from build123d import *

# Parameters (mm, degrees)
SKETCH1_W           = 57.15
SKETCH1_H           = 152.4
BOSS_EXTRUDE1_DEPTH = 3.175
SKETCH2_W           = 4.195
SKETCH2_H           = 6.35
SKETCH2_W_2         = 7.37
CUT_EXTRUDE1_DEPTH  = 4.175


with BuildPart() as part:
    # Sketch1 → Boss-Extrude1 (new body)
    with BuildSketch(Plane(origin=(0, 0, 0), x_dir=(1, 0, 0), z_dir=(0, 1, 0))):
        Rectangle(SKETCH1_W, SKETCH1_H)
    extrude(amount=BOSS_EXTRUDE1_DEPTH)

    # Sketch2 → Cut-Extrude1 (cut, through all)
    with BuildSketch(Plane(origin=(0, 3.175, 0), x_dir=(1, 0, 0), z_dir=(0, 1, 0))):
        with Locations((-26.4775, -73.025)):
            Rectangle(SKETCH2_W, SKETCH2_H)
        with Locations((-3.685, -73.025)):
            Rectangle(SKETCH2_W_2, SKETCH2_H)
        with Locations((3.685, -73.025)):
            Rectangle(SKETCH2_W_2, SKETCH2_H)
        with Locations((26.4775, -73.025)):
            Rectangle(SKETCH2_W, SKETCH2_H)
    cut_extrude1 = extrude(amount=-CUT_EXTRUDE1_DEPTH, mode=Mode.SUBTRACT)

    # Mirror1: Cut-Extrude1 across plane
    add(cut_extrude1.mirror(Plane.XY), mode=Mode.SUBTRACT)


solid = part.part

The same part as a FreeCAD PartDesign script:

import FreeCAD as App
import Part
import Sketcher

V = App.Vector
Q = App.Units.Quantity


def add_polygon(sketch, points):
    """Adds a closed chain of lines whose ends are joined by coincident constraints."""
    first, n = sketch.GeometryCount, len(points)
    for a, b in zip(points, points[1:] + points[:1]):
        sketch.addGeometry(Part.LineSegment(App.Vector(*a, 0), App.Vector(*b, 0)), False)
    for i in range(n):
        sketch.addConstraint(Sketcher.Constraint("Coincident", first + i, 2, first + (i + 1) % n, 1))

doc = App.newDocument("Part")
body = doc.addObject("PartDesign::Body", "Body")

sketch1 = body.newObject("Sketcher::SketchObject", "Sketch")
sketch1.AttachmentSupport = (doc.getObject("XZ_Plane"), [""])
sketch1.MapMode = "FlatFace"
add_polygon(sketch1, [(-29, -76), (-29, 76), (29, 76), (29, -76)])
sketch1.addConstraint(Sketcher.Constraint("Vertical", 0))
sketch1.addConstraint(Sketcher.Constraint("Horizontal", 1))
sketch1.addConstraint(Sketcher.Constraint("Vertical", 2))
sketch1.addConstraint(Sketcher.Constraint("Horizontal", 3))
sketch1.addConstraint(Sketcher.Constraint("Symmetric", 0, 2, 2, 2, -1, 1))
sketch1.addConstraint(Sketcher.Constraint("DistanceY", 0, 1, 0, 2, Q("6 in")))
sketch1.addConstraint(Sketcher.Constraint("DistanceX", 1, 1, 1, 2, Q("2.25 in")))
pad1 = body.newObject("PartDesign::Pad", "Pad")
pad1.Profile = sketch1
pad1.Length = Q("0.125 in")
pad1.Reversed = True

sketch2 = body.newObject("Sketcher::SketchObject", "Sketch001")
sketch2.AttachmentSupport = (doc.getObject("XZ_Plane"), [""])
sketch2.MapMode = "FlatFace"
sketch2.AttachmentOffset = App.Placement(V(0, 0, -0.125 * 25.4), App.Rotation())
add_polygon(sketch2, [(-28.6, 69.8), (-28.6, 76.2), (-24.4, 76.2), (-24.4, 69.8)])
add_polygon(sketch2, [(-7.4, 69.8), (-7.4, 76.2), (7.4, 76.2), (7.4, 69.8)])
add_polygon(sketch2, [(24.4, 69.8), (24.4, 76.2), (28.6, 76.2), (28.6, 69.8)])
sketch2.addConstraint(Sketcher.Constraint("Vertical", 0))
sketch2.addConstraint(Sketcher.Constraint("Horizontal", 1))
sketch2.addConstraint(Sketcher.Constraint("Vertical", 2))
sketch2.addConstraint(Sketcher.Constraint("Horizontal", 3))
sketch2.addConstraint(Sketcher.Constraint("Vertical", 4))
sketch2.addConstraint(Sketcher.Constraint("Horizontal", 5))
sketch2.addConstraint(Sketcher.Constraint("Vertical", 6))
sketch2.addConstraint(Sketcher.Constraint("Horizontal", 7))
sketch2.addConstraint(Sketcher.Constraint("Vertical", 8))
sketch2.addConstraint(Sketcher.Constraint("Horizontal", 9))
sketch2.addConstraint(Sketcher.Constraint("Vertical", 10))
sketch2.addConstraint(Sketcher.Constraint("Horizontal", 11))
sketch2.addConstraint(Sketcher.Constraint("Symmetric", 1, 2, 8, 2, -2))
sketch2.addConstraint(Sketcher.Constraint("Symmetric", 3, 2, 10, 2, -2))
sketch2.addConstraint(Sketcher.Constraint("Horizontal", 1, 2, 4, 2))
sketch2.addConstraint(Sketcher.Constraint("Horizontal", 3, 2, 6, 2))
sketch2.addConstraint(Sketcher.Constraint("DistanceY", -1, 1, 0, 2, Q("3 in")))
sketch2.addConstraint(Sketcher.Constraint("DistanceY", 0, 1, 0, 2, Q("0.25 in")))
sketch2.addConstraint(Sketcher.Constraint("DistanceX", 1, 2, 5, 2, Q("1.25 in")))
sketch2.addConstraint(Sketcher.Constraint("DistanceX", 4, 2, 8, 2, Q("1.25 in")))
sketch2.addConstraint(Sketcher.Constraint("DistanceX", 0, 2, -1, 1, Q("1.125 in")))
sketch2.addConstraint(Sketcher.Constraint("DistanceX", 1, 1, 1, 2, Q("4.195 mm")))
pocket1 = body.newObject("PartDesign::Pocket", "Pocket")
pocket1.Profile = sketch2
pocket1.Type = "ThroughAll"
pocket1.Reversed = True
doc.recompute()

mirrored = body.newObject("PartDesign::Mirrored", "Mirrored")
mirrored.Originals = [pocket1]
mirrored.MirrorPlane = (doc.getObject("XY_Plane"), [""])
body.Tip = mirrored

doc.recompute()
